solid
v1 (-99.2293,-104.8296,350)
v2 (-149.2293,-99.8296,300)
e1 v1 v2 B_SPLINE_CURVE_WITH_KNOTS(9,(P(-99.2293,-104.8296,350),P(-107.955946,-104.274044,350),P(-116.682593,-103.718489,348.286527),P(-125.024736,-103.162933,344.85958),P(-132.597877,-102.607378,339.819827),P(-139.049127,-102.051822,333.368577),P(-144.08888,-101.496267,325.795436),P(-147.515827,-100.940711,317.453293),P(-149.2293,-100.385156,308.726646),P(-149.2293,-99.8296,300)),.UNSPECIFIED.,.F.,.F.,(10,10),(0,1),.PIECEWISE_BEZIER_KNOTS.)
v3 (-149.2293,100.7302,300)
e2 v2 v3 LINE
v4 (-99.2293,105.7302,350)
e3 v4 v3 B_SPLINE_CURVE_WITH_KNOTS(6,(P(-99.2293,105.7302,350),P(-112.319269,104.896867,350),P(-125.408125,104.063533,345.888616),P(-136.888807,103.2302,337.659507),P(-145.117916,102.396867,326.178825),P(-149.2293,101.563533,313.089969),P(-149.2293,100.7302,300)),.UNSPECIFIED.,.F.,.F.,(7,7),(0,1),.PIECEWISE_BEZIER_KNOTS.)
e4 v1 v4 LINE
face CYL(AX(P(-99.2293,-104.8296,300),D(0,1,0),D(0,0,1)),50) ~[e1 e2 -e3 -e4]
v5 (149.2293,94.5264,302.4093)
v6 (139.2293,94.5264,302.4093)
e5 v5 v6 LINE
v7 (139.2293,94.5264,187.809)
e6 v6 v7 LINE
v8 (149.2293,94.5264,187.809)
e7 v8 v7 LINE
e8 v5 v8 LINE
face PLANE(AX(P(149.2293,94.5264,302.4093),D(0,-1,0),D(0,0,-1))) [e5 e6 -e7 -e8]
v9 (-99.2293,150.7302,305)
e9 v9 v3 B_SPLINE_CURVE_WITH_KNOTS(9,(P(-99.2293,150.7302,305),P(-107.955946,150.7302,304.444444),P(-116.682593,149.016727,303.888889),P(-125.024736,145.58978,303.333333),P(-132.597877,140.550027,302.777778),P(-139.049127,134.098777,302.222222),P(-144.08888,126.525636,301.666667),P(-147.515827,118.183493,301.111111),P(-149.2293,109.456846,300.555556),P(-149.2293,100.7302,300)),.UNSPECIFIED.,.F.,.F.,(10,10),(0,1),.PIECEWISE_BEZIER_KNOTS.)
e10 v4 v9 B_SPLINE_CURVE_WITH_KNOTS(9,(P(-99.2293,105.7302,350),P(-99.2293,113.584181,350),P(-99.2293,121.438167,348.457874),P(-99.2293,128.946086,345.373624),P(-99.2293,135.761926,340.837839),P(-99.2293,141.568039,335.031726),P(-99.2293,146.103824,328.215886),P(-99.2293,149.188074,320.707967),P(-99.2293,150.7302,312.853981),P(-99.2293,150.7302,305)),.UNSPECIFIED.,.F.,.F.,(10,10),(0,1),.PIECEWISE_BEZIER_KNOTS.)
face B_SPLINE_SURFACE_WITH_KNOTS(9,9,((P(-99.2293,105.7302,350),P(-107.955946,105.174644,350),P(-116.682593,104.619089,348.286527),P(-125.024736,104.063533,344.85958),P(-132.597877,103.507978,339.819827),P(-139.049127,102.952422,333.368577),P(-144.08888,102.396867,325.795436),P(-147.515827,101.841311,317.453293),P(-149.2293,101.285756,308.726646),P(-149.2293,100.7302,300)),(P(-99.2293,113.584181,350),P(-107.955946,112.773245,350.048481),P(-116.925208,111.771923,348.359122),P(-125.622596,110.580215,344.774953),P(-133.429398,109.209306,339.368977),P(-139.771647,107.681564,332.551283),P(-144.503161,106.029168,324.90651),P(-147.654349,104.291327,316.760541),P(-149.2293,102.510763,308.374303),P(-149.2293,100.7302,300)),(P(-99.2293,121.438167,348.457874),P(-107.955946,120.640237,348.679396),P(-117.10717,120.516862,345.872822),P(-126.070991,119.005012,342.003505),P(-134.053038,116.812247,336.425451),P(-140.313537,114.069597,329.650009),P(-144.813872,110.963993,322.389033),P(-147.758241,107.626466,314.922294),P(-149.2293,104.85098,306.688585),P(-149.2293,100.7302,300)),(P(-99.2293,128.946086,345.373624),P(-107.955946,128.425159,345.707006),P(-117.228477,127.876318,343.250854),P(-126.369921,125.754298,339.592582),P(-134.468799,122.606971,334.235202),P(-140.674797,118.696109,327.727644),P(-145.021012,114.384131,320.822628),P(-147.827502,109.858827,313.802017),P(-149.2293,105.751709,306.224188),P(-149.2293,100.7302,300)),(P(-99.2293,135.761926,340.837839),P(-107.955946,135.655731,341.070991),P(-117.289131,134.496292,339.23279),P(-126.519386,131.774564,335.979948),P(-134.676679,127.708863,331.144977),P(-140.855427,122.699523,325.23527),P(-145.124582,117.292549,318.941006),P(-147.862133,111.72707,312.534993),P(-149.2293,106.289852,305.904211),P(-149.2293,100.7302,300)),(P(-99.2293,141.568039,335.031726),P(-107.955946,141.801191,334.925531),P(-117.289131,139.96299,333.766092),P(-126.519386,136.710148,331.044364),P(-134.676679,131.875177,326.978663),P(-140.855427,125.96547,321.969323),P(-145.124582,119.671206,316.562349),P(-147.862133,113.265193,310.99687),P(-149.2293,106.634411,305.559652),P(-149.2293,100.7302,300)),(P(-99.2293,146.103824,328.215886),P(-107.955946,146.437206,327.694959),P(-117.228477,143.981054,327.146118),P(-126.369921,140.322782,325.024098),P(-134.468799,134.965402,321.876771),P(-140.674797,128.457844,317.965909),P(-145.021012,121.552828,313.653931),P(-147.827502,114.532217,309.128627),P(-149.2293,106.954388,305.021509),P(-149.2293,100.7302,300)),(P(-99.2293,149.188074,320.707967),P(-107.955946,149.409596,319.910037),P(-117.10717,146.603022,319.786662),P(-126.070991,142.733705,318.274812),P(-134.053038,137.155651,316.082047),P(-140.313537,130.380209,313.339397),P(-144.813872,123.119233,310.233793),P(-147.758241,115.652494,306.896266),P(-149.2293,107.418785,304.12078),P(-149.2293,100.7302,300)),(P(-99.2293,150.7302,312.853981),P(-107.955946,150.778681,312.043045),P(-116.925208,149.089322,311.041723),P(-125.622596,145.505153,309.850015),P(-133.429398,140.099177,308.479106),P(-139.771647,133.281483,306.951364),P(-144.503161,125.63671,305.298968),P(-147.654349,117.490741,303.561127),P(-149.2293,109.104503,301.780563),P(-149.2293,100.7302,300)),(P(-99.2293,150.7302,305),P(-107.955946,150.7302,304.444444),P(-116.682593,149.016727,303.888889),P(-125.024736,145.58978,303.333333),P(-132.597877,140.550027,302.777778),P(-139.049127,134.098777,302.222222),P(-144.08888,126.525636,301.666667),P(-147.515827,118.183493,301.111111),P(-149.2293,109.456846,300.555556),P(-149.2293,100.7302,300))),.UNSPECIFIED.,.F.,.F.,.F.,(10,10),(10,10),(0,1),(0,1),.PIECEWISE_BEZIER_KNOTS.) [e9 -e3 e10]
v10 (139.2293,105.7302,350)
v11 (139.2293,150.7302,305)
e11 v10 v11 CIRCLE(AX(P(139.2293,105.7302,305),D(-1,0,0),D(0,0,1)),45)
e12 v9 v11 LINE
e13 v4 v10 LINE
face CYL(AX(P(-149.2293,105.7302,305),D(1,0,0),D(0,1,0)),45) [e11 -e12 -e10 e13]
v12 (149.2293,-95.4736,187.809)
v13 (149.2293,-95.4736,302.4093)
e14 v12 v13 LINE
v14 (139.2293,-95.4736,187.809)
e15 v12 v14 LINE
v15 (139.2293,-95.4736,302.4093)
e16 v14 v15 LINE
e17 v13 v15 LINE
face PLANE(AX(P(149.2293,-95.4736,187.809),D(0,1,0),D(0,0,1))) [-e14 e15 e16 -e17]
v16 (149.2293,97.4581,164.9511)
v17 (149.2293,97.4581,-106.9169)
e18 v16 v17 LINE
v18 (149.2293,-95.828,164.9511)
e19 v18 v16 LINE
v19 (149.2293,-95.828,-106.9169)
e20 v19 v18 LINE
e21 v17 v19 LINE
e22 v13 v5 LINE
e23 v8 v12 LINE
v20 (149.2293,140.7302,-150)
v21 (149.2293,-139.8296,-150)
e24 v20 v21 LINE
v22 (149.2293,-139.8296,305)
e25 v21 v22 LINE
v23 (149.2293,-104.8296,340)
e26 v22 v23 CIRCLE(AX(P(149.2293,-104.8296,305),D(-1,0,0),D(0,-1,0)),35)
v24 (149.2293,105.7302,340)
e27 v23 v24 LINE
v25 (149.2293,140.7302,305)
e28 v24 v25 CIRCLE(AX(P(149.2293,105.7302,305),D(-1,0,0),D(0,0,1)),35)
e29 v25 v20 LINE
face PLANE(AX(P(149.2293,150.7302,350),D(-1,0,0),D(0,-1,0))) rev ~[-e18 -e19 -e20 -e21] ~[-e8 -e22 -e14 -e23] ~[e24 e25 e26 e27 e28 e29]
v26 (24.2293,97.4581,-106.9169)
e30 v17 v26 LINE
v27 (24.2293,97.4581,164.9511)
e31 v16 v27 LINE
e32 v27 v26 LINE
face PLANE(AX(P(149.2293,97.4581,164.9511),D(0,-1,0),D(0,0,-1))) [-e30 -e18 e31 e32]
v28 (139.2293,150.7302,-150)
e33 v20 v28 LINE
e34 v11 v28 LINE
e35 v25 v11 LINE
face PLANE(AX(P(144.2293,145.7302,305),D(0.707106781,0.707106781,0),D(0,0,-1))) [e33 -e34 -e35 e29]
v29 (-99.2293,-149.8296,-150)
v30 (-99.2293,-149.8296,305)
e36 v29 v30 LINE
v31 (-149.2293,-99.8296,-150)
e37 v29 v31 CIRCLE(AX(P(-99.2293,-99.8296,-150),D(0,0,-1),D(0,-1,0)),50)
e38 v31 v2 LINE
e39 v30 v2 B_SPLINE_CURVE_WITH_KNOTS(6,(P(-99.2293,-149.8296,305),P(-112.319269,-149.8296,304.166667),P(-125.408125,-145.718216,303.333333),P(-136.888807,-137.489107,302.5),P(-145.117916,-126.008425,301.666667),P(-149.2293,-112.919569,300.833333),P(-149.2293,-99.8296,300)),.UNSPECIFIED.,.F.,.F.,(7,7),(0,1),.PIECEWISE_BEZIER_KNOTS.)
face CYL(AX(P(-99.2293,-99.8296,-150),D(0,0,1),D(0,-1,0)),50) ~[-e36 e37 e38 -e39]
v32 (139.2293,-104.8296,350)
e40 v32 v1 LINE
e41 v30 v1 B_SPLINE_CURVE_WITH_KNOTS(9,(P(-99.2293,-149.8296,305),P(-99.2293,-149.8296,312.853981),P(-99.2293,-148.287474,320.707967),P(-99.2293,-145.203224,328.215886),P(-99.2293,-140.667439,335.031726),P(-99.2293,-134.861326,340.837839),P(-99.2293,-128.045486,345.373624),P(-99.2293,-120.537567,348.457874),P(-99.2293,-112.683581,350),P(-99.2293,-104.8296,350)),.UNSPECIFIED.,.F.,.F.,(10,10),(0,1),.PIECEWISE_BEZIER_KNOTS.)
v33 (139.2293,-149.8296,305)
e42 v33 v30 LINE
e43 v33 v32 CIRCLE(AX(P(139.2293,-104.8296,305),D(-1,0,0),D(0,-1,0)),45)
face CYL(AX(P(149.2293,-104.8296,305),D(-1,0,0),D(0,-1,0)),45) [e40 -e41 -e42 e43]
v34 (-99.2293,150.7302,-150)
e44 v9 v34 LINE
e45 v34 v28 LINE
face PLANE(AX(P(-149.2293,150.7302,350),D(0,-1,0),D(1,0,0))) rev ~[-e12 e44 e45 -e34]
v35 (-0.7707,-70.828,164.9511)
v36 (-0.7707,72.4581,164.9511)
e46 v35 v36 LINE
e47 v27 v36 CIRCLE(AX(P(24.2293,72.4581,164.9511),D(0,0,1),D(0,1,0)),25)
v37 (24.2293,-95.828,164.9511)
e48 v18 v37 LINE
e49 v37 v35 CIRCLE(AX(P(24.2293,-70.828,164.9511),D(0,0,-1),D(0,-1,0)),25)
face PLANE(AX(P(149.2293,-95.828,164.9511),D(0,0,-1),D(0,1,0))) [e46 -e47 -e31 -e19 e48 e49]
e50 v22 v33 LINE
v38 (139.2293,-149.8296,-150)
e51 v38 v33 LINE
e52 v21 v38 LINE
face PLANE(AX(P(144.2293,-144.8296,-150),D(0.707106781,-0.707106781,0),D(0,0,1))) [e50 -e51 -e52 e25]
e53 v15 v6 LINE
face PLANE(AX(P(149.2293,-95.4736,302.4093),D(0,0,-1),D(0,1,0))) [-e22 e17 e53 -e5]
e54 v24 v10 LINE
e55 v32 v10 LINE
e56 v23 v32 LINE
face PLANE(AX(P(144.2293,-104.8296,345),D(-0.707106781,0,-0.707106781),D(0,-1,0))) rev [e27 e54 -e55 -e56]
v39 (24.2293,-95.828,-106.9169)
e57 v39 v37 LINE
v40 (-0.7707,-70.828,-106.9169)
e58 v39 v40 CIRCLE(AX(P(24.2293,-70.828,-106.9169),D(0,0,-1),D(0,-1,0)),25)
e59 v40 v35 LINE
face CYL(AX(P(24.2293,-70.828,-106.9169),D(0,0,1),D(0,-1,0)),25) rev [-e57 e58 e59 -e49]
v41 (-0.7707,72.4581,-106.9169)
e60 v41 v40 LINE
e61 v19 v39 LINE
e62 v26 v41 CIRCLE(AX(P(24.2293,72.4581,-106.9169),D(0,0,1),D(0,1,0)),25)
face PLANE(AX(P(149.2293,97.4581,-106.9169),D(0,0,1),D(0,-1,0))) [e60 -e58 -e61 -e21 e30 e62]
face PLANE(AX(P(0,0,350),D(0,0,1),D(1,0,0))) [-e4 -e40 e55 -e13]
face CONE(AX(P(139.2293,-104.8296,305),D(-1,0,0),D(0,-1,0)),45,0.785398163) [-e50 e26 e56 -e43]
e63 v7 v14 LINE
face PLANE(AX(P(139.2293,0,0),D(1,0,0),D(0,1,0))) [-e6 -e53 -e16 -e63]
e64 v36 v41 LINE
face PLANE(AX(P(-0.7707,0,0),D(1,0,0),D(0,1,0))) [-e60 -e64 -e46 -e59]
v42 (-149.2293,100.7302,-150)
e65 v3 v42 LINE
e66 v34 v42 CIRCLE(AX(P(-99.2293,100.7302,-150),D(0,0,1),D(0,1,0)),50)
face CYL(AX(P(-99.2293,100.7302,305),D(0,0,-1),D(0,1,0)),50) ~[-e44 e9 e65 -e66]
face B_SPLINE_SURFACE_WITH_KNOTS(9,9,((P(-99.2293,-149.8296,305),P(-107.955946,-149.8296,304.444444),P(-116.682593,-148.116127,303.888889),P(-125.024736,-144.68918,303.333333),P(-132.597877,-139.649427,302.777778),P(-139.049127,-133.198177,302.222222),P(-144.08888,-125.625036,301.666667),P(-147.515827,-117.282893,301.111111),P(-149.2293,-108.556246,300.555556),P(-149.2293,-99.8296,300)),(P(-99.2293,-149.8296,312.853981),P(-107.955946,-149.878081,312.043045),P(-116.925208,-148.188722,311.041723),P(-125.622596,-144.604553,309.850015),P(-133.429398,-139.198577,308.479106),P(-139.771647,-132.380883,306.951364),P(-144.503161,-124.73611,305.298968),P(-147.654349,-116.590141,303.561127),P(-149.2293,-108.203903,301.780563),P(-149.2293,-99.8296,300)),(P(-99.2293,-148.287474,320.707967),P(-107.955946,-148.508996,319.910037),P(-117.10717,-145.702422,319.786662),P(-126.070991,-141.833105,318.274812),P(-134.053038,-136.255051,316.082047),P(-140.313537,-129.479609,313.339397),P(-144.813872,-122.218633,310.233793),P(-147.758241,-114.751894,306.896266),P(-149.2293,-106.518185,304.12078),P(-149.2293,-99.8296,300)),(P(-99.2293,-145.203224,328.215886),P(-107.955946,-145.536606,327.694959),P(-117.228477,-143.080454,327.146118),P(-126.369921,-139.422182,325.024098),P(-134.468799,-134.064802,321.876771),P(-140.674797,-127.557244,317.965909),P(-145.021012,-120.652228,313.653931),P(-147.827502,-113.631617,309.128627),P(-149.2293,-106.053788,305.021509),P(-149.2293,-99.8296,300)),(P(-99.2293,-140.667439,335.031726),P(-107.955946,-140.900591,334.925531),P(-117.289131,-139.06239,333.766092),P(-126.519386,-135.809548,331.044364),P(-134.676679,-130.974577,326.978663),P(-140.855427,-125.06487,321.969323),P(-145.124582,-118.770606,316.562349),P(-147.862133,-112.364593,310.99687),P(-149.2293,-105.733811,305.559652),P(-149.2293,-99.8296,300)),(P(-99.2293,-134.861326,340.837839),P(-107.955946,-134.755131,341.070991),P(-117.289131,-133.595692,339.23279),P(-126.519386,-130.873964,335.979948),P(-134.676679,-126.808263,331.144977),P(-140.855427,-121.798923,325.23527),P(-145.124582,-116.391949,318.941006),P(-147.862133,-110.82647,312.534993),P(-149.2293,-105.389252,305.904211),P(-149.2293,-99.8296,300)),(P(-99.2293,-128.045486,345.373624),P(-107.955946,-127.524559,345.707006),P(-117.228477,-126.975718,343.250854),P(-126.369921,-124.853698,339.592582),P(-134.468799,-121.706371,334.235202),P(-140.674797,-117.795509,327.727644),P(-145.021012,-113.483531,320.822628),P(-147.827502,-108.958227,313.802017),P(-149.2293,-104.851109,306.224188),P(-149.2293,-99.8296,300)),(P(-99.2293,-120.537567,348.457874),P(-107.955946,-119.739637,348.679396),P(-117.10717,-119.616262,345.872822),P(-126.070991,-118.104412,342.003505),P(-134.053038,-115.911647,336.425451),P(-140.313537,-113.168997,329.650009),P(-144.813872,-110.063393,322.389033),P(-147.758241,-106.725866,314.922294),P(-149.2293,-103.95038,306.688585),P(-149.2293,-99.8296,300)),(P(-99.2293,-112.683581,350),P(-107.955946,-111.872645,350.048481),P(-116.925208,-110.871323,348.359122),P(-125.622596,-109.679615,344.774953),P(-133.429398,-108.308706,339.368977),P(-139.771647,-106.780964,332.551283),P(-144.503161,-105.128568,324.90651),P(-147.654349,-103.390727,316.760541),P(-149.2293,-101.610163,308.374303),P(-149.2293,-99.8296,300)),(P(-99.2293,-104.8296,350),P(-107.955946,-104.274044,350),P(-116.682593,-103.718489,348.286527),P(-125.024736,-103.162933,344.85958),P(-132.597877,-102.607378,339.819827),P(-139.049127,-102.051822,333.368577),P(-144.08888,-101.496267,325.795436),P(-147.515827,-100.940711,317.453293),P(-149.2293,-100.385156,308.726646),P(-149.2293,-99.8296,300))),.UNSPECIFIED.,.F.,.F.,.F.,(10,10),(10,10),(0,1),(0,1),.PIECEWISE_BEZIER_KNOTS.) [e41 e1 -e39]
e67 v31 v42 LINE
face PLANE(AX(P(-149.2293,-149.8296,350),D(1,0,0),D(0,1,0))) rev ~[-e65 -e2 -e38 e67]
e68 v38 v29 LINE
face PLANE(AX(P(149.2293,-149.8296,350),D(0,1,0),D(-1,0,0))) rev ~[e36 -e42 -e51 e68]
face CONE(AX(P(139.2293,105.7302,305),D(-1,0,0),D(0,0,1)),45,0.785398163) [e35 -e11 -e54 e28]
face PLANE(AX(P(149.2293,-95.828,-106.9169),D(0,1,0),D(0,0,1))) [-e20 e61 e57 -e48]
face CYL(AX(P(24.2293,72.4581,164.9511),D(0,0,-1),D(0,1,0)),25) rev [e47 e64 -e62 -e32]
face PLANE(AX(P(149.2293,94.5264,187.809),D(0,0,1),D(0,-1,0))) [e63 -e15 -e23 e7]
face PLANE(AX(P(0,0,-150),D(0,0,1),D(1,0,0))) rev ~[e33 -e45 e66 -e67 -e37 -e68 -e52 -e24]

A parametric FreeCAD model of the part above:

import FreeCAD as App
import Part
import Sketcher

V = App.Vector


def edges_at(feature, points):
    """Names of the edges that pass closest to the given points."""
    edges = feature.Shape.Edges
    near = lambda p: min(range(len(edges)), key=lambda i: edges[i].distToShape(Part.Vertex(*p))[0])
    return sorted({f"Edge{near(p) + 1}" for p in points})

doc = App.newDocument("Part")
body = doc.addObject("PartDesign::Body", "Body")

sketch1 = body.newObject("Sketcher::SketchObject", "Sketch")
sketch1.AttachmentSupport = (doc.getObject("XY_Plane"), [""])
sketch1.MapMode = "FlatFace"
sketch1.AttachmentOffset = App.Placement(V(0, 0, 350), App.Rotation())
sketch1.addGeometry(Part.LineSegment(V(149, 151, 0), V(-149, 151, 0)), False)
sketch1.addGeometry(Part.LineSegment(V(-149, 151, 0), V(-149, -150, 0)), False)
sketch1.addGeometry(Part.LineSegment(V(-149, -150, 0), V(149, -150, 0)), False)
sketch1.addGeometry(Part.LineSegment(V(149, -150, 0), V(149, 151, 0)), False)
sketch1.addConstraint(Sketcher.Constraint("Coincident", 0, 2, 1, 1))
sketch1.addConstraint(Sketcher.Constraint("Coincident", 1, 2, 2, 1))
sketch1.addConstraint(Sketcher.Constraint("Coincident", 2, 2, 3, 1))
sketch1.addConstraint(Sketcher.Constraint("Coincident", 3, 2, 0, 1))
sketch1.addConstraint(Sketcher.Constraint("Horizontal", 0))
sketch1.addConstraint(Sketcher.Constraint("Vertical", 1))
sketch1.addConstraint(Sketcher.Constraint("Horizontal", 2))
sketch1.addConstraint(Sketcher.Constraint("Vertical", 3))
sketch1.addConstraint(Sketcher.Constraint("DistanceX", 0, 2, 0, 1, 298.4586))
sketch1.addConstraint(Sketcher.Constraint("DistanceY", 1, 2, 1, 1, 300.5598))
sketch1.addConstraint(Sketcher.Constraint("DistanceX", 0, 2, -1, 1, 149.2293))
sketch1.addConstraint(Sketcher.Constraint("DistanceY", -1, 1, 0, 2, 150.7302))
pad1 = body.newObject("PartDesign::Pad", "Pad")
pad1.Profile = sketch1
pad1.Length = 500
pad1.Reversed = True
doc.recompute()

fillet = body.newObject("PartDesign::Fillet", "Fillet")
fillet.Base = (pad1, edges_at(pad1, [(0, -149.83, 350), (0, 150.73, 350)]))
fillet.Radius = 45

sketch2 = body.newObject("Sketcher::SketchObject", "Sketch001")
sketch2.AttachmentSupport = (doc.getObject("YZ_Plane"), [""])
sketch2.MapMode = "FlatFace"
sketch2.AttachmentOffset = App.Placement(V(0, 0, 149.2293), App.Rotation())
sketch2.addGeometry(Part.LineSegment(V(95, 302, 0), V(-95, 302, 0)), False)
sketch2.addGeometry(Part.LineSegment(V(-95, 302, 0), V(-95, 188, 0)), False)
sketch2.addGeometry(Part.LineSegment(V(-95, 188, 0), V(95, 188, 0)), False)
sketch2.addGeometry(Part.LineSegment(V(95, 188, 0), V(95, 302, 0)), False)
sketch2.addConstraint(Sketcher.Constraint("Coincident", 0, 2, 1, 1))
sketch2.addConstraint(Sketcher.Constraint("Coincident", 1, 2, 2, 1))
sketch2.addConstraint(Sketcher.Constraint("Coincident", 2, 2, 3, 1))
sketch2.addConstraint(Sketcher.Constraint("Coincident", 3, 2, 0, 1))
sketch2.addConstraint(Sketcher.Constraint("Horizontal", 0))
sketch2.addConstraint(Sketcher.Constraint("Vertical", 1))
sketch2.addConstraint(Sketcher.Constraint("Horizontal", 2))
sketch2.addConstraint(Sketcher.Constraint("Vertical", 3))
sketch2.addConstraint(Sketcher.Constraint("DistanceX", 0, 2, 0, 1, 190.0))
sketch2.addConstraint(Sketcher.Constraint("DistanceY", 1, 2, 1, 1, 114.6003))
sketch2.addConstraint(Sketcher.Constraint("DistanceY", -1, 1, 1, 2, 187.809))
sketch2.addConstraint(Sketcher.Constraint("DistanceX", 0, 2, -1, 1, 95.4736))
pocket1 = body.newObject("PartDesign::Pocket", "Pocket")
pocket1.Profile = sketch2
pocket1.Length = 10

sketch3 = body.newObject("Sketcher::SketchObject", "Sketch002")
sketch3.AttachmentSupport = (doc.getObject("YZ_Plane"), [""])
sketch3.MapMode = "FlatFace"
sketch3.AttachmentOffset = App.Placement(V(0, 0, 149.2293), App.Rotation())
sketch3.addGeometry(Part.LineSegment(V(97, 165, 0), V(-96, 165, 0)), False)
sketch3.addGeometry(Part.LineSegment(V(-96, 165, 0), V(-96, -107, 0)), False)
sketch3.addGeometry(Part.LineSegment(V(-96, -107, 0), V(97, -107, 0)), False)
sketch3.addGeometry(Part.LineSegment(V(97, -107, 0), V(97, 165, 0)), False)
sketch3.addConstraint(Sketcher.Constraint("Coincident", 0, 2, 1, 1))
sketch3.addConstraint(Sketcher.Constraint("Coincident", 1, 2, 2, 1))
sketch3.addConstraint(Sketcher.Constraint("Coincident", 2, 2, 3, 1))
sketch3.addConstraint(Sketcher.Constraint("Coincident", 3, 2, 0, 1))
sketch3.addConstraint(Sketcher.Constraint("Horizontal", 0))
sketch3.addConstraint(Sketcher.Constraint("Vertical", 1))
sketch3.addConstraint(Sketcher.Constraint("Horizontal", 2))
sketch3.addConstraint(Sketcher.Constraint("Vertical", 3))
sketch3.addConstraint(Sketcher.Constraint("DistanceX", 0, 2, 0, 1, 193.286))
sketch3.addConstraint(Sketcher.Constraint("DistanceY", 1, 2, 1, 1, 271.868))
sketch3.addConstraint(Sketcher.Constraint("DistanceX", 0, 2, -1, 1, 95.828))
sketch3.addConstraint(Sketcher.Constraint("DistanceY", -1, 1, 0, 2, 164.951))
pocket2 = body.newObject("PartDesign::Pocket", "Pocket001")
pocket2.Profile = sketch3
pocket2.Length = 150
doc.recompute()

fillet2 = body.newObject("PartDesign::Fillet", "Fillet001")
fillet2.Base = (pocket2, edges_at(pocket2, [(-0.771, 97.458, 29.017), (-0.771, -95.828, 29.017)]))
fillet2.Radius = 25
doc.recompute()

chamfer = body.newObject("PartDesign::Chamfer", "Chamfer")
chamfer.Base = (fillet2, edges_at(fillet2, [
    (149.229, 150.73, 77.5),
    (149.229, 137.55, 336.82),
    (149.229, 0.45, 350),
    (149.229, -136.649, 336.82),
    (149.229, -149.83, 77.5),
]))
chamfer.Size = 10
doc.recompute()

fillet3 = body.newObject("PartDesign::Fillet", "Fillet002")
fillet3.Base = (chamfer, edges_at(chamfer, [
    (-149.229, 150.73, 77.5),
    (-149.229, 137.55, 336.82),
    (-149.229, 0.45, 350),
    (-149.229, -136.649, 336.82),
    (-149.229, -149.83, 77.5),
]))
fillet3.Radius = 50

doc.recompute()
